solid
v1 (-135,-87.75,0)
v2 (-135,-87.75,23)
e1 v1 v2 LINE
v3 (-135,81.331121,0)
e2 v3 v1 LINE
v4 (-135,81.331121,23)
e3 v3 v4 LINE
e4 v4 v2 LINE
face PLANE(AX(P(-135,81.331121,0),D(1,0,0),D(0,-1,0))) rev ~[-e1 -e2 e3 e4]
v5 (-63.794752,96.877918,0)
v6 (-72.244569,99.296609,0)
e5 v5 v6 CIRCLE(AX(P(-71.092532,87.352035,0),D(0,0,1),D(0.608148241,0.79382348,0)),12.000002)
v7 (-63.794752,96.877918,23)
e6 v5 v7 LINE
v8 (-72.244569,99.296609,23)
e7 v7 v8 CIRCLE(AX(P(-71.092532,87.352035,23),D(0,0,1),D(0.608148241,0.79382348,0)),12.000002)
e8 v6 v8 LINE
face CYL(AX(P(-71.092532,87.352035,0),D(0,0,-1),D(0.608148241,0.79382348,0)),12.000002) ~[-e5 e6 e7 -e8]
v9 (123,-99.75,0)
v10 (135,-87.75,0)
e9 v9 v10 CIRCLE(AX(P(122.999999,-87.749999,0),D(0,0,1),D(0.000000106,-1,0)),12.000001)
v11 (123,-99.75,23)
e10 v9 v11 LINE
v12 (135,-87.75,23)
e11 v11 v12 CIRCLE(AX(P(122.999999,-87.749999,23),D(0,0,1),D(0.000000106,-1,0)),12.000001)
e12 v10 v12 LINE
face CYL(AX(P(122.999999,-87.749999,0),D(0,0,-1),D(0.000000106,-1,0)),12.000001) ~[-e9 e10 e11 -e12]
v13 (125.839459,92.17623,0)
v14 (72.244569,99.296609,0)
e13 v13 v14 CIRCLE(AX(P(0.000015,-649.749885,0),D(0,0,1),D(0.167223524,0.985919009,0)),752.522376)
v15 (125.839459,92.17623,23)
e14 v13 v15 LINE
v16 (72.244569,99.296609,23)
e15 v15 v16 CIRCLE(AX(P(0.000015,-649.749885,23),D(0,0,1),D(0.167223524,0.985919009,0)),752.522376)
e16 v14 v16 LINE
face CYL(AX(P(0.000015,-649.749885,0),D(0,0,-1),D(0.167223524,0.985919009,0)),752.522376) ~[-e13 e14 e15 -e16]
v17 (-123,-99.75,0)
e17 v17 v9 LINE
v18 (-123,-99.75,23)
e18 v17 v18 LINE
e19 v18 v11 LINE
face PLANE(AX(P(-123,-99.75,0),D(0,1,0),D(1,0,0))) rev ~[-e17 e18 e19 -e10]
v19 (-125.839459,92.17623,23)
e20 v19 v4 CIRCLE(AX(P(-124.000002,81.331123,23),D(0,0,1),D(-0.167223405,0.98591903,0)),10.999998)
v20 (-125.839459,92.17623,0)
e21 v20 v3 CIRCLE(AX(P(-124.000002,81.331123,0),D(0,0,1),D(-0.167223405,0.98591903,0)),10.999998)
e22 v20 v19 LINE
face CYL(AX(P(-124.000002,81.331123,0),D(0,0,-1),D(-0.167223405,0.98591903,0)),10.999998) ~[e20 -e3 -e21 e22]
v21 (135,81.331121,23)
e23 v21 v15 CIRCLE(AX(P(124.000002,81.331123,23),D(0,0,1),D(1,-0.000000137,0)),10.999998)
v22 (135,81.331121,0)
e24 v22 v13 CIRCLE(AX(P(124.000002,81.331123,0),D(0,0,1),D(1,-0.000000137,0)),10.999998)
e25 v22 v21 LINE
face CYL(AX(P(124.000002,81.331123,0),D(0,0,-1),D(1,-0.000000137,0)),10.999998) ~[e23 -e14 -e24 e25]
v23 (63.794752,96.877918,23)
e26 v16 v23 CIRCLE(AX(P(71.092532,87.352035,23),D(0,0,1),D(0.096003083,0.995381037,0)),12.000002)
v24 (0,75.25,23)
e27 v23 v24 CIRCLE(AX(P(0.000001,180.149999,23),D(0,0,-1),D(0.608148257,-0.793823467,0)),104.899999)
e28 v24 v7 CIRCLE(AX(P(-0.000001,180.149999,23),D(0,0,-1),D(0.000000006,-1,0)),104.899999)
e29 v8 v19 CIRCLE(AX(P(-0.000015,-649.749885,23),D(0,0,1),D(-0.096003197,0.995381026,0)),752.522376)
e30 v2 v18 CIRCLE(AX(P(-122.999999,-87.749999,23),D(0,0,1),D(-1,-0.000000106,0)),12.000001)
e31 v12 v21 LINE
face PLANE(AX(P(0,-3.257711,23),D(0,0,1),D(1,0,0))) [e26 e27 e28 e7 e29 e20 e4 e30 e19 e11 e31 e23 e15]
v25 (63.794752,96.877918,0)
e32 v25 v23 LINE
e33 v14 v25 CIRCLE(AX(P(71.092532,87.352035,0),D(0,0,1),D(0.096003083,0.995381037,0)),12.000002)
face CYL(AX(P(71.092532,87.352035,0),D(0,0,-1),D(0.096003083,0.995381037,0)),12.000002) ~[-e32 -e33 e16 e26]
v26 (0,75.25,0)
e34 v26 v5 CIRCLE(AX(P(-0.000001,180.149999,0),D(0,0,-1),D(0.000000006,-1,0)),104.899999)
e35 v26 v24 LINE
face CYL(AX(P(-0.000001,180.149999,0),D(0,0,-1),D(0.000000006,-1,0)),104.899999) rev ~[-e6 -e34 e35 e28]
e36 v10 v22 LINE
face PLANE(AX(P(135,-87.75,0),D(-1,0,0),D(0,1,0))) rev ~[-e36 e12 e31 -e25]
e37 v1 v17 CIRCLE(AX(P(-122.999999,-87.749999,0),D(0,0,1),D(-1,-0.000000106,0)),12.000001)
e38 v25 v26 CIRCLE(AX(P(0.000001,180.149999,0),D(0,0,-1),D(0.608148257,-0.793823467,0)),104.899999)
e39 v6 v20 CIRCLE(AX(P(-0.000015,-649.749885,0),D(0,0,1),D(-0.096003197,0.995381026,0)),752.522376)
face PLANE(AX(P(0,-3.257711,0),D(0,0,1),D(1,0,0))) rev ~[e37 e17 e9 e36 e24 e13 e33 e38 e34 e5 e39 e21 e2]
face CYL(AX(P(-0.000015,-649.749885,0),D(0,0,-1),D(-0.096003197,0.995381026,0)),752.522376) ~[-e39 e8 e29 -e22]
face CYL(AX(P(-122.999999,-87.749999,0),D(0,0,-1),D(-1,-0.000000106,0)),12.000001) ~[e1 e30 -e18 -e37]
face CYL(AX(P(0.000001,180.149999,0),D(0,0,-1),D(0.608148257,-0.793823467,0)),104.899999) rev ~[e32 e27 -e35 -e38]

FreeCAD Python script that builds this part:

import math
import FreeCAD as App
import Part
import Sketcher
Q = App.Units.Quantity

doc = App.newDocument("Part")
params = doc.addObject("Spreadsheet::Sheet", "Params")
for row, (alias, value) in enumerate([
    ("sketch1_radius", "12.000001 mm"),
    ("sketch1_radius2", "10.999998 mm"),
    ("sketch1_radius3", "104.899999 mm"),
    ("sketch1_width", "246 mm"),
    ("pad1_length", "23 mm"),
], start=1):
    params.set(f"A{row}", alias)
    params.set(f"B{row}", "=" + value)
    params.setAlias(f"B{row}", alias)

body = doc.addObject("PartDesign::Body", "Body")

sketch1 = body.newObject("Sketcher::SketchObject", "Sketch")
sketch1.AttachmentSupport = (doc.getObject("XY_Plane"), [""])
sketch1.MapMode = "FlatFace"
sketch1.addGeometry([
    Part.ArcOfCircle(Part.Circle(App.Vector(-123, -88, 0), App.Vector(0, 0, 1), 12), math.radians(-180), math.radians(-90)),
    Part.LineSegment(App.Vector(-123, -100, 0), App.Vector(123, -100, 0)),
    Part.ArcOfCircle(Part.Circle(App.Vector(123, -88, 0), App.Vector(0, 0, 1), 12), math.radians(-90), math.radians(0)),
    Part.LineSegment(App.Vector(135, -88, 0), App.Vector(135, 81, 0)),
    Part.ArcOfCircle(Part.Circle(App.Vector(124, 81, 0), App.Vector(0, 0, 1), 11), math.radians(0), math.radians(80)),
    Part.ArcOfCircle(Part.Circle(App.Vector(0, -650, 0), App.Vector(0, 0, 1), 753), math.radians(80.37), math.radians(84.49)),
    Part.ArcOfCircle(Part.Circle(App.Vector(71, 87, 0), App.Vector(0, 0, 1), 12), math.radians(84), math.radians(127)),
    Part.ArcOfCircle(Part.Circle(App.Vector(0, 180, 0), App.Vector(0, 0, 1), 105), math.radians(-90), math.radians(-53)),
    Part.ArcOfCircle(Part.Circle(App.Vector(0, 180, 0), App.Vector(0, 0, 1), 105), math.radians(-127), math.radians(-90)),
    Part.ArcOfCircle(Part.Circle(App.Vector(-71, 87, 0), App.Vector(0, 0, 1), 12), math.radians(53), math.radians(96)),
    Part.ArcOfCircle(Part.Circle(App.Vector(0, -650, 0), App.Vector(0, 0, 1), 753), math.radians(95.51), math.radians(99.63)),
    Part.ArcOfCircle(Part.Circle(App.Vector(-124, 81, 0), App.Vector(0, 0, 1), 11), math.radians(100), math.radians(180)),
    Part.LineSegment(App.Vector(-135, 81, 0), App.Vector(-135, -88, 0)),
], False)
sketch1.addConstraint([
    Sketcher.Constraint("Tangent", 0, 2, 1, 1),
    Sketcher.Constraint("Tangent", 1, 2, 2, 1),
    Sketcher.Constraint("Tangent", 2, 2, 3, 1),
    Sketcher.Constraint("Tangent", 3, 2, 4, 1),
    Sketcher.Constraint("Tangent", 4, 2, 5, 1),
    Sketcher.Constraint("Tangent", 5, 2, 6, 1),
    Sketcher.Constraint("Tangent", 6, 2, 7, 2),
    Sketcher.Constraint("Tangent", 7, 1, 8, 2),
    Sketcher.Constraint("Tangent", 8, 1, 9, 1),
    Sketcher.Constraint("Tangent", 9, 2, 10, 1),
    Sketcher.Constraint("Tangent", 10, 2, 11, 1),
    Sketcher.Constraint("Tangent", 11, 2, 12, 1),
    Sketcher.Constraint("Tangent", 12, 2, 0, 1),
    Sketcher.Constraint("Horizontal", 1),
    Sketcher.Constraint("Vertical", 3),
    Sketcher.Constraint("Vertical", 12),
    Sketcher.Constraint("Equal", 0, 2),
    Sketcher.Constraint("Equal", 2, 6),
    Sketcher.Constraint("Equal", 7, 8),
    Sketcher.Constraint("Equal", 6, 9),
    Sketcher.Constraint("Equal", 5, 10),
    Sketcher.Constraint("Equal", 4, 11),
    Sketcher.Constraint("Symmetric", 6, 3, 9, 3, -2),
    Sketcher.Constraint("Symmetric", 4, 3, 11, 3, -2),
    Sketcher.Constraint("PointOnObject", 7, 1, -2),
    Sketcher.Constraint("Radius", 0, Q("12.000001 mm")),
    Sketcher.Constraint("Radius", 4, Q("10.999998 mm")),
    Sketcher.Constraint("Radius", 7, Q("104.899999 mm")),
    Sketcher.Constraint("DistanceX", 1, 1, 1, 2, Q("246 mm")),
    Sketcher.Constraint("DistanceY", 0, 3, -1, 1, Q("87.749999 mm")),
    Sketcher.Constraint("DistanceY", -1, 1, 7, 3, Q("180.149999 mm")),
    Sketcher.Constraint("Radius", 5, Q("752.522376 mm")),
    Sketcher.Constraint("DistanceY", 3, 1, 3, 2, Q("169.081121 mm")),
    Sketcher.Constraint("DistanceX", -1, 1, 6, 3, Q("71.092532 mm")),
])
sketch1.setExpression("Constraints[25]", "Params.sketch1_radius")
sketch1.setExpression("Constraints[26]", "Params.sketch1_radius2")
sketch1.setExpression("Constraints[27]", "Params.sketch1_radius3")
sketch1.setExpression("Constraints[28]", "Params.sketch1_width")
pad1 = body.newObject("PartDesign::Pad", "Pad")
pad1.Profile = sketch1
pad1.setExpression("Length", "Params.pad1_length")

doc.recompute()
